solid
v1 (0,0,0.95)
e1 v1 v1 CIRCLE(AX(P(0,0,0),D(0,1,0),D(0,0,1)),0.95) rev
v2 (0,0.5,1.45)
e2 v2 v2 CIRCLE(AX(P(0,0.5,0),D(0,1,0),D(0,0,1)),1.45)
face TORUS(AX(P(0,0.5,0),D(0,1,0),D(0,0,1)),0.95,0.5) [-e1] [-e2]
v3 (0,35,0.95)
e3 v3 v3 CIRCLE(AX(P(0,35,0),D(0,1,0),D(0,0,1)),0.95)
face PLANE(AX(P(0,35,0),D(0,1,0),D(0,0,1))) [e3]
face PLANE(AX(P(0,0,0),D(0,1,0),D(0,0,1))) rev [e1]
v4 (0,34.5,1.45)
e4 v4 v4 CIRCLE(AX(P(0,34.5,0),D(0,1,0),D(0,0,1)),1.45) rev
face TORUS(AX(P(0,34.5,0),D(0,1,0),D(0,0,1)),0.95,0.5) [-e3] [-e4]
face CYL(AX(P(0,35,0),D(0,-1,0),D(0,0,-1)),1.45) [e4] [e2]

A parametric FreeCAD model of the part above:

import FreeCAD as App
import Part
import Sketcher
from FreeCAD import Vector


def edges_at(feature, points):
    """Names of the edges that pass closest to the given points."""
    edges = feature.Shape.Edges
    near = lambda p: min(range(len(edges)), key=lambda i: edges[i].distToShape(Part.Vertex(*p))[0])
    return sorted({f"Edge{near(p) + 1}" for p in points})

doc = App.newDocument("Part")
params = doc.addObject("Spreadsheet::Sheet", "Params")
for row, (alias, value) in enumerate([
    ("sketch1_diameter", "2.9 mm"),
    ("pad1_length", "35 mm"),
    ("fillet_radius", "0.5 mm"),
], start=1):
    params.set(f"A{row}", alias)
    params.set(f"B{row}", "=" + value)
    params.setAlias(f"B{row}", alias)

body = doc.addObject("PartDesign::Body", "Body")

# Sketch on XZ plane
sketch1 = body.newObject("Sketcher::SketchObject", "Sketch")
sketch1.AttachmentSupport = (doc.getObject("XZ_Plane"), [""])
sketch1.MapMode = "FlatFace"
sketch1.addGeometry(Part.Circle(Vector(0, 0, 0), Vector(0, 0, 1), 1.4), False)
sketch1.addConstraint([
    Sketcher.Constraint("Coincident", 0, 3, -1, 1),
    Sketcher.Constraint("Diameter", 0, 2.9),
])
sketch1.setExpression("Constraints[1]", "Params.sketch1_diameter")
pad1 = body.newObject("PartDesign::Pad", "Pad")
pad1.Profile = sketch1
pad1.setExpression("Length", "Params.pad1_length")
pad1.Reversed = True
doc.recompute()

fillet = body.newObject("PartDesign::Fillet", "Fillet")
fillet.Base = (pad1, edges_at(pad1, [(0, 0, -1.45), (0, 35, -1.45)]))
fillet.setExpression("Radius", "Params.fillet_radius")

doc.recompute()
